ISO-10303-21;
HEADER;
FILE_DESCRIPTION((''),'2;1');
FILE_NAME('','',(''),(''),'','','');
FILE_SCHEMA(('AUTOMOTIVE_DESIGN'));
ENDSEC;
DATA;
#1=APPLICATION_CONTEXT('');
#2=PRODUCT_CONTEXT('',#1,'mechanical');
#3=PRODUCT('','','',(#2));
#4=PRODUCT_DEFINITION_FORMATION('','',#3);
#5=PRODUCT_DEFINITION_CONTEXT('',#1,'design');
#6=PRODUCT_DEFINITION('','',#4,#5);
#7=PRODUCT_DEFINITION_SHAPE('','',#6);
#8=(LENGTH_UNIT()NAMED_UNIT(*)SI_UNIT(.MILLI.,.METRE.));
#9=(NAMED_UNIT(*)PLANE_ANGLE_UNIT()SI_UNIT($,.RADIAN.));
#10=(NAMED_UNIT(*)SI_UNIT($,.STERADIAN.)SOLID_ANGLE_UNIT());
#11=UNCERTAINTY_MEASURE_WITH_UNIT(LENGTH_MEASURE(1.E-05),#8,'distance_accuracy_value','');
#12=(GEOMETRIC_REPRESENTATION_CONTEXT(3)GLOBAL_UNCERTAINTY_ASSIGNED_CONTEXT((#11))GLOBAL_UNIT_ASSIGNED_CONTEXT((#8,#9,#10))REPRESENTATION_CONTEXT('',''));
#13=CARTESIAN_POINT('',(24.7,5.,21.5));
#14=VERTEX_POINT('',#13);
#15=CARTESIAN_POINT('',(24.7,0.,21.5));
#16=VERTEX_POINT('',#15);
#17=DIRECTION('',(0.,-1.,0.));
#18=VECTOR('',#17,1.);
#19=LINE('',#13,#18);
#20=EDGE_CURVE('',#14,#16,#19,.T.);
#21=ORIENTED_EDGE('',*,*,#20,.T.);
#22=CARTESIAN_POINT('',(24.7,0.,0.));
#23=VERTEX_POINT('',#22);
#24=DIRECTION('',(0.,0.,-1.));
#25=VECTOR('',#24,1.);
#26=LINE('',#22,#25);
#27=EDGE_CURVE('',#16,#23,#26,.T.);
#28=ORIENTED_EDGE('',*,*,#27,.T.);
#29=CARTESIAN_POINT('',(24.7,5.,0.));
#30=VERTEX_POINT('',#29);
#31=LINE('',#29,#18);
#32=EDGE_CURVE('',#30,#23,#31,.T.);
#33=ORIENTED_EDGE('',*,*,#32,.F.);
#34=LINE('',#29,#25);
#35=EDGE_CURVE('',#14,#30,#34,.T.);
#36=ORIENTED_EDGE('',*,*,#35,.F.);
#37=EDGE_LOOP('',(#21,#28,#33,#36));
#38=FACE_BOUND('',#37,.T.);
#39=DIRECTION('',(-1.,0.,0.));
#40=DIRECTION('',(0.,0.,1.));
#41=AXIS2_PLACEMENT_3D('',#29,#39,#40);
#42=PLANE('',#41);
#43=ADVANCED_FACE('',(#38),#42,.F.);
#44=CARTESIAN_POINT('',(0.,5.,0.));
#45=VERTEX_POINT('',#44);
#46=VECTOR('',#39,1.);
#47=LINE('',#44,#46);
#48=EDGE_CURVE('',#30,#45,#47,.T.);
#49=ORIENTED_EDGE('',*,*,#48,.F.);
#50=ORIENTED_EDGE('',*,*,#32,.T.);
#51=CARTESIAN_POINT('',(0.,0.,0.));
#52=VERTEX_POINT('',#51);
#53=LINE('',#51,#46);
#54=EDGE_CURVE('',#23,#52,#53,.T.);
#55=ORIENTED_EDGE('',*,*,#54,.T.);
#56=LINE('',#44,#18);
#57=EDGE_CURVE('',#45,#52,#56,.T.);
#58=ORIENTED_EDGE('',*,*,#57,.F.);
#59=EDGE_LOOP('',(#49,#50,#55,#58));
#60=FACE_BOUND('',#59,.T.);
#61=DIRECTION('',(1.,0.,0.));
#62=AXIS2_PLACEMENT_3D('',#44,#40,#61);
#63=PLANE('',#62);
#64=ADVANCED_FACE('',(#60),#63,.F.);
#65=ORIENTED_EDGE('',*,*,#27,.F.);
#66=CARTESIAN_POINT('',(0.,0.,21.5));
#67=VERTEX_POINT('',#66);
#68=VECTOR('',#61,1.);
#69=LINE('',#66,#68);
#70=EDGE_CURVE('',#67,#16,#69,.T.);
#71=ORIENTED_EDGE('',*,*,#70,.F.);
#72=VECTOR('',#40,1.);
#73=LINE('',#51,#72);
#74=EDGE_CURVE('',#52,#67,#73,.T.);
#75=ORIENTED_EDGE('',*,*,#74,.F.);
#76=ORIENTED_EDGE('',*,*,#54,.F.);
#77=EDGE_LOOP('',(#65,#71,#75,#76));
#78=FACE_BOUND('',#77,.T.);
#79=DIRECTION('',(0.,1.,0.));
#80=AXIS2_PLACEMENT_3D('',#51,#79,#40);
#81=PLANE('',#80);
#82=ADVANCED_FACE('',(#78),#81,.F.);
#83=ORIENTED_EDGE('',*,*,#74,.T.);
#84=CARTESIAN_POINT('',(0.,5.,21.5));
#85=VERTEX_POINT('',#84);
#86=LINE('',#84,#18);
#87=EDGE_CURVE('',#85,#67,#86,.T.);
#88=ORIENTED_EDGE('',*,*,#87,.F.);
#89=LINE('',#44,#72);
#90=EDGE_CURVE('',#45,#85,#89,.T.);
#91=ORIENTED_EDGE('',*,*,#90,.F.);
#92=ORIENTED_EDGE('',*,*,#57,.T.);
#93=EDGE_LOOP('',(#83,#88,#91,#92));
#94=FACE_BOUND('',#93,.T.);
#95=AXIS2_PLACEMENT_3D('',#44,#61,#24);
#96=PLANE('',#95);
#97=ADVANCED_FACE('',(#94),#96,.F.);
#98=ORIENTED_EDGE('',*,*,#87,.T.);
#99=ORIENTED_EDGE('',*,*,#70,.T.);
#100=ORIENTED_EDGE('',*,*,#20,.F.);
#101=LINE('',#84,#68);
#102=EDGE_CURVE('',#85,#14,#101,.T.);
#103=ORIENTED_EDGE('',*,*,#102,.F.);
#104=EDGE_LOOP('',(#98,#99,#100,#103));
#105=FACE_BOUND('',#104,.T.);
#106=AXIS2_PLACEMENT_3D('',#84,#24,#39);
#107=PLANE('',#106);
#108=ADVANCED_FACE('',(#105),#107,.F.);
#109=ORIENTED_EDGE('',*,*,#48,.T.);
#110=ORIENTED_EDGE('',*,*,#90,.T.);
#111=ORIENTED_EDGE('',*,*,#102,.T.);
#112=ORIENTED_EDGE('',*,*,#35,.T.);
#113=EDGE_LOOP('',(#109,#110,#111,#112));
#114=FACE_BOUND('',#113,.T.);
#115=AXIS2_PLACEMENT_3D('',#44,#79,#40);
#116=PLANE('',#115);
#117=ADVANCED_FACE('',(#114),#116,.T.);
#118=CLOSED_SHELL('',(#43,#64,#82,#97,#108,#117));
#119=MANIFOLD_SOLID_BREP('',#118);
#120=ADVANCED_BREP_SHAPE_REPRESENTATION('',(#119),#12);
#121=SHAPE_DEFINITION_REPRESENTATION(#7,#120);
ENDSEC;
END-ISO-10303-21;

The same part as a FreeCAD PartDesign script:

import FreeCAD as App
import Part
import Sketcher

doc = App.newDocument("Part")
body = doc.addObject("PartDesign::Body", "Body")

sketch1 = body.newObject("Sketcher::SketchObject", "Sketch")
sketch1.AttachmentSupport = (doc.getObject("XZ_Plane"), [""])
sketch1.MapMode = "FlatFace"
sketch1.addGeometry([
    Part.LineSegment(App.Vector(0, 0, 0), App.Vector(0, 22, 0)),
    Part.LineSegment(App.Vector(0, 22, 0), App.Vector(25, 22, 0)),
    Part.LineSegment(App.Vector(25, 22, 0), App.Vector(25, 0, 0)),
    Part.LineSegment(App.Vector(25, 0, 0), App.Vector(0, 0, 0)),
], False)
sketch1.addConstraint([
    Sketcher.Constraint("Coincident", 0, 2, 1, 1),
    Sketcher.Constraint("Coincident", 1, 2, 2, 1),
    Sketcher.Constraint("Coincident", 2, 2, 3, 1),
    Sketcher.Constraint("Coincident", 3, 2, 0, 1),
    Sketcher.Constraint("Vertical", 0),
    Sketcher.Constraint("Horizontal", 1),
    Sketcher.Constraint("Vertical", 2),
    Sketcher.Constraint("Horizontal", 3),
    Sketcher.Constraint("Coincident", 3, 2, -1, 1),
    Sketcher.Constraint("DistanceX", 1, 1, 1, 2, 24.7),
    Sketcher.Constraint("DistanceY", 0, 1, 0, 2, 21.5),
])
pad1 = body.newObject("PartDesign::Pad", "Pad")
pad1.Profile = sketch1
pad1.Length = 5
pad1.Reversed = True

doc.recompute()
